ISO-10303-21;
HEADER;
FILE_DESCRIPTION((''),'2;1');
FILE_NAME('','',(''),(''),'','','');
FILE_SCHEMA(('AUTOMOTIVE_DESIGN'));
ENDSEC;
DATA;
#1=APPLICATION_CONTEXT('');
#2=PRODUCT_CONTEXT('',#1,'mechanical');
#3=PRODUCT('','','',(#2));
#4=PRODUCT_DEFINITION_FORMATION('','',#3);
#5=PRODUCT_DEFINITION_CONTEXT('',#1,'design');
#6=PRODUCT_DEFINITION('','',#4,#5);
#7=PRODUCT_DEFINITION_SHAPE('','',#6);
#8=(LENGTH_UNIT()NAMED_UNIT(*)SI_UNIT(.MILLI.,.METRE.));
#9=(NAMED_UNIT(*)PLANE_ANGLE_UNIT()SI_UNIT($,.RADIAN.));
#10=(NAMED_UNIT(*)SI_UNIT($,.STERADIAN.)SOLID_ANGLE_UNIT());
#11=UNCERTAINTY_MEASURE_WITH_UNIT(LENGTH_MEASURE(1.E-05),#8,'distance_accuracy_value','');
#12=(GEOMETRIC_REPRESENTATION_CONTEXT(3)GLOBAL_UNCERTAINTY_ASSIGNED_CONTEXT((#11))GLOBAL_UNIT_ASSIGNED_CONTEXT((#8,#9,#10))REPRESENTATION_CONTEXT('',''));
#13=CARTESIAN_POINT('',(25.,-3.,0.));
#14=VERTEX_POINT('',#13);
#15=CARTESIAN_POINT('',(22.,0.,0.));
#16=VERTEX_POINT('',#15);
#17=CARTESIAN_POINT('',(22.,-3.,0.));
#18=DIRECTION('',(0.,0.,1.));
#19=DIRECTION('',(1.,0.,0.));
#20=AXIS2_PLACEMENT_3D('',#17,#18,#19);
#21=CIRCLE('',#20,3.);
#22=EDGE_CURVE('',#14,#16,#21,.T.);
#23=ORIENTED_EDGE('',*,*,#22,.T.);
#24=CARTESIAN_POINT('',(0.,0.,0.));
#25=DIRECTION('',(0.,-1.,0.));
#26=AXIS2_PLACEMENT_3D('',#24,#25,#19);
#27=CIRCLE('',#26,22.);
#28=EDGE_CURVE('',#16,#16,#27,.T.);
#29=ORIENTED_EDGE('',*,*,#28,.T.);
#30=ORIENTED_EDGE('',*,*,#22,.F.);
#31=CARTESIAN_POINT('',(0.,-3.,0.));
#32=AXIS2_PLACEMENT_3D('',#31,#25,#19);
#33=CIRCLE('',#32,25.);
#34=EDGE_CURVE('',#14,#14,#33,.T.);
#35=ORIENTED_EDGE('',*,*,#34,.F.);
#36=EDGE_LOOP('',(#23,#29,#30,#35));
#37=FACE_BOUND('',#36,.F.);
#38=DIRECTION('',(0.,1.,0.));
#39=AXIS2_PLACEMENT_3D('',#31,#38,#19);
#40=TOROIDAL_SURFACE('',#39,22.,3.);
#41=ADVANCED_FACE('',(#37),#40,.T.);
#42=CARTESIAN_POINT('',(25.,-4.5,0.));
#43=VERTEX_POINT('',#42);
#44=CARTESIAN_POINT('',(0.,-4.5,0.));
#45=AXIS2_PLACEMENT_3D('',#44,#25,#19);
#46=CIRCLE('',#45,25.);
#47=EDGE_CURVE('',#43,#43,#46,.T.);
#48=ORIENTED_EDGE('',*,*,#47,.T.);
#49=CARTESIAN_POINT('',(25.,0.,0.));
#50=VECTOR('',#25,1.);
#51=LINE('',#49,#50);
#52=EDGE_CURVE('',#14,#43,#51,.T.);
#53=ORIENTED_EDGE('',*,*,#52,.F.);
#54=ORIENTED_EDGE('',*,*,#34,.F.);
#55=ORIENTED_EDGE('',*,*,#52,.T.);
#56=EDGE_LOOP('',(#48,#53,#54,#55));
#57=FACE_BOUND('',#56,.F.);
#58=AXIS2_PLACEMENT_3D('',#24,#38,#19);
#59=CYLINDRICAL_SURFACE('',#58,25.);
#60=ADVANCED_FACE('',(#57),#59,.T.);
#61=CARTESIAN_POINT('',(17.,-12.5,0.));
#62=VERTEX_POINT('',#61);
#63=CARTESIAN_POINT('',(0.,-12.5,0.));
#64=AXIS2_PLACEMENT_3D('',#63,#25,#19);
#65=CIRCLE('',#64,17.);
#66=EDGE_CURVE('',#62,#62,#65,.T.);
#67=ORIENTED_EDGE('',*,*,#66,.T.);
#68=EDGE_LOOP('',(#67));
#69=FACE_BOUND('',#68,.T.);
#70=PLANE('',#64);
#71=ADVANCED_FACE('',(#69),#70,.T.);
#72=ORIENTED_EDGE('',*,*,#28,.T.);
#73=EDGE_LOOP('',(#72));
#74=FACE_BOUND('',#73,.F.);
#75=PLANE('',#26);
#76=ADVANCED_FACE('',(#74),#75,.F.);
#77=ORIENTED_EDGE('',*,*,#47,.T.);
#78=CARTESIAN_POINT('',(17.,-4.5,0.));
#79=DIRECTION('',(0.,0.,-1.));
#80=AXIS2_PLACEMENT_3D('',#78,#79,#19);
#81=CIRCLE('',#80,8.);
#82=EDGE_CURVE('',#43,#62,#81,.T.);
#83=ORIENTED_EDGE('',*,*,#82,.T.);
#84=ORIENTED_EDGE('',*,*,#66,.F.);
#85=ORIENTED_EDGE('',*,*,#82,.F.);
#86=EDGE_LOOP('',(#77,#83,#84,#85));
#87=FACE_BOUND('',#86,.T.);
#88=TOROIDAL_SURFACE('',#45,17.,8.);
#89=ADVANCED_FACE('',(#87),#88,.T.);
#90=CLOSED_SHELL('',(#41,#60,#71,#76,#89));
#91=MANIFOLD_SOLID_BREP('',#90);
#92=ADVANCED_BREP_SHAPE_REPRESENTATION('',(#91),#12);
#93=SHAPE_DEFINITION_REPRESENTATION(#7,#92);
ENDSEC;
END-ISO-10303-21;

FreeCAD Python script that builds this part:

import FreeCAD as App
import Part
import Sketcher
from FreeCAD import Vector


def edges_at(feature, points):
    """Names of the edges that pass closest to the given points."""
    edges = feature.Shape.Edges
    near = lambda p: min(range(len(edges)), key=lambda i: edges[i].distToShape(Part.Vertex(*p))[0])
    return sorted({f"Edge{near(p) + 1}" for p in points})

doc = App.newDocument("Part")
body = doc.addObject("PartDesign::Body", "Body")

# Sketch on XZ plane
sketch1 = body.newObject("Sketcher::SketchObject", "Sketch")
sketch1.AttachmentSupport = (doc.getObject("XZ_Plane"), [""])
sketch1.MapMode = "FlatFace"
sketch1.addGeometry(Part.Circle(Vector(0, 0, 0), Vector(0, 0, 1), 25), False)
sketch1.addConstraint(Sketcher.Constraint("Coincident", 0, 3, -1, 1))
sketch1.addConstraint(Sketcher.Constraint("Diameter", 0, 50.0))
pad1 = body.newObject("PartDesign::Pad", "Pad")
pad1.Profile = sketch1
pad1.Length = 12.5
doc.recompute()

fillet = body.newObject("PartDesign::Fillet", "Fillet")
fillet.Base = (pad1, edges_at(pad1, [(-25, -12.5, 0)]))
fillet.Radius = 8
doc.recompute()

fillet2 = body.newObject("PartDesign::Fillet", "Fillet001")
fillet2.Base = (fillet, edges_at(fillet, [(-25, 0, 0)]))
fillet2.Radius = 3

doc.recompute()
